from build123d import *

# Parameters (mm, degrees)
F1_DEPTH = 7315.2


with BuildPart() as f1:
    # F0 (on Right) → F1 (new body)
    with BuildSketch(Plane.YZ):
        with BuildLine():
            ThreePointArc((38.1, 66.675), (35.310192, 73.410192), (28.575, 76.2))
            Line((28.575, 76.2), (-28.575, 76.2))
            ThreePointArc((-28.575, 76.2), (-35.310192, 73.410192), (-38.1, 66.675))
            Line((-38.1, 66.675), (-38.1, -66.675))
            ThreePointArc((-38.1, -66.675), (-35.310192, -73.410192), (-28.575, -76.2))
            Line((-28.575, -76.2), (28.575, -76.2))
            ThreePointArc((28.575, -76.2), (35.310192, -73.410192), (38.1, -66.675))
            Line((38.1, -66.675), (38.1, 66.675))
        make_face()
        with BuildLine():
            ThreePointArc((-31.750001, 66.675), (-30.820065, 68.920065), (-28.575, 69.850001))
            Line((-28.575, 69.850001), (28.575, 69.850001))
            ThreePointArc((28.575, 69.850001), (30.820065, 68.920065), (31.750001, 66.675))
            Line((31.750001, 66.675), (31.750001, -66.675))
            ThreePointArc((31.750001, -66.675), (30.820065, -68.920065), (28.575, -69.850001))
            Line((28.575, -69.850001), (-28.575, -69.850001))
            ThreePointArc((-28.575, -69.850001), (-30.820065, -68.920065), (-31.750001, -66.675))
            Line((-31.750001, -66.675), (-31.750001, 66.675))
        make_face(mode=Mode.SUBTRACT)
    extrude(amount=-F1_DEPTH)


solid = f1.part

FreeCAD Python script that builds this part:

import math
import FreeCAD as App
import Part
import Sketcher

V = App.Vector
Q = App.Units.Quantity

doc = App.newDocument("Part")
body = doc.addObject("PartDesign::Body", "Body")

# Sketch on YZ plane
sketch1 = doc.addObject("Sketcher::SketchObject", "Sketch")
body.addObject(sketch1)
sketch1.AttachmentSupport = (doc.YZ_Plane, [""])
sketch1.MapMode = "FlatFace"
sketch1.addGeometry([
    Part.ArcOfCircle(Part.Circle(V(28.6, 66.7, 0), V(0, 0, 1), 9.5), math.radians(0), math.radians(90)),  # 0
    Part.LineSegment(V(28.6, 76.2, 0), V(-28.6, 76.2, 0)),  # 1
    Part.ArcOfCircle(Part.Circle(V(-28.6, 66.7, 0), V(0, 0, 1), 9.5), math.radians(90), math.radians(180)),  # 2
    Part.LineSegment(V(-38.1, 66.7, 0), V(-38.1, -66.7, 0)),  # 3
    Part.ArcOfCircle(Part.Circle(V(-28.6, -66.7, 0), V(0, 0, 1), 9.5), math.radians(-180), math.radians(-90)),  # 4
    Part.LineSegment(V(-28.6, -76.2, 0), V(28.6, -76.2, 0)),  # 5
    Part.ArcOfCircle(Part.Circle(V(28.6, -66.7, 0), V(0, 0, 1), 9.5), math.radians(-90), math.radians(0)),  # 6
    Part.LineSegment(V(38.1, -66.7, 0), V(38.1, 66.7, 0)),  # 7
    Part.LineSegment(V(-31.8, -66.7, 0), V(-31.8, 66.7, 0)),  # 8
    Part.ArcOfCircle(Part.Circle(V(-28.6, 66.7, 0), V(0, 0, 1), 3.2), math.radians(90), math.radians(180)),  # 9
    Part.LineSegment(V(-28.6, 69.9, 0), V(28.6, 69.9, 0)),  # 10
    Part.ArcOfCircle(Part.Circle(V(28.6, 66.7, 0), V(0, 0, 1), 3.2), math.radians(0), math.radians(90)),  # 11
    Part.LineSegment(V(31.8, 66.7, 0), V(31.8, -66.7, 0)),  # 12
    Part.ArcOfCircle(Part.Circle(V(28.6, -66.7, 0), V(0, 0, 1), 3.2), math.radians(-90), math.radians(0)),  # 13
    Part.LineSegment(V(28.6, -69.9, 0), V(-28.6, -69.9, 0)),  # 14
    Part.ArcOfCircle(Part.Circle(V(-28.6, -66.7, 0), V(0, 0, 1), 3.2), math.radians(180), math.radians(270)),  # 15
], False)
sketch1.addConstraint([
    Sketcher.Constraint("Tangent", 0, 2, 1, 1),
    Sketcher.Constraint("Tangent", 1, 2, 2, 1),
    Sketcher.Constraint("Tangent", 2, 2, 3, 1),
    Sketcher.Constraint("Tangent", 3, 2, 4, 1),
    Sketcher.Constraint("Tangent", 4, 2, 5, 1),
    Sketcher.Constraint("Tangent", 5, 2, 6, 1),
    Sketcher.Constraint("Tangent", 6, 2, 7, 1),
    Sketcher.Constraint("Tangent", 7, 2, 0, 1),
    Sketcher.Constraint("Tangent", 8, 2, 9, 2),
    Sketcher.Constraint("Tangent", 9, 1, 10, 1),
    Sketcher.Constraint("Tangent", 10, 2, 11, 2),
    Sketcher.Constraint("Tangent", 11, 1, 12, 1),
    Sketcher.Constraint("Tangent", 12, 2, 13, 2),
    Sketcher.Constraint("Tangent", 13, 1, 14, 1),
    Sketcher.Constraint("Tangent", 14, 2, 15, 2),
    Sketcher.Constraint("Tangent", 15, 1, 8, 1),
    Sketcher.Constraint("Horizontal", 1),
    Sketcher.Constraint("Vertical", 3),
    Sketcher.Constraint("Horizontal", 5),
    Sketcher.Constraint("Vertical", 7),
    Sketcher.Constraint("Vertical", 8),
    Sketcher.Constraint("Horizontal", 10),
    Sketcher.Constraint("Vertical", 12),
    Sketcher.Constraint("Horizontal", 14),
    Sketcher.Constraint("Coincident", 9, 3, 2, 3),
    Sketcher.Constraint("Coincident", 11, 3, 0, 3),
    Sketcher.Constraint("Coincident", 13, 3, 6, 3),
    Sketcher.Constraint("Equal", 0, 2),
    Sketcher.Constraint("Equal", 2, 4),
    Sketcher.Constraint("Equal", 4, 6),
    Sketcher.Constraint("Equal", 13, 15),
    Sketcher.Constraint("Symmetric", 0, 3, 4, 3, -1, 1),
    Sketcher.Constraint("DistanceY", -1, 1, 0, 2, Q("3 in")),
    Sketcher.Constraint("Radius", 0, Q("0.375 in")),
    Sketcher.Constraint("Radius", 9, Q("0.125 in")),
    Sketcher.Constraint("DistanceX", 1, 2, 1, 1, Q("2.25 in")),
])
pad1 = doc.addObject("PartDesign::Pad", "Pad")
body.addObject(pad1)
pad1.Profile = sketch1
pad1.Length = Q("288 in")
pad1.Reversed = True

doc.recompute()
